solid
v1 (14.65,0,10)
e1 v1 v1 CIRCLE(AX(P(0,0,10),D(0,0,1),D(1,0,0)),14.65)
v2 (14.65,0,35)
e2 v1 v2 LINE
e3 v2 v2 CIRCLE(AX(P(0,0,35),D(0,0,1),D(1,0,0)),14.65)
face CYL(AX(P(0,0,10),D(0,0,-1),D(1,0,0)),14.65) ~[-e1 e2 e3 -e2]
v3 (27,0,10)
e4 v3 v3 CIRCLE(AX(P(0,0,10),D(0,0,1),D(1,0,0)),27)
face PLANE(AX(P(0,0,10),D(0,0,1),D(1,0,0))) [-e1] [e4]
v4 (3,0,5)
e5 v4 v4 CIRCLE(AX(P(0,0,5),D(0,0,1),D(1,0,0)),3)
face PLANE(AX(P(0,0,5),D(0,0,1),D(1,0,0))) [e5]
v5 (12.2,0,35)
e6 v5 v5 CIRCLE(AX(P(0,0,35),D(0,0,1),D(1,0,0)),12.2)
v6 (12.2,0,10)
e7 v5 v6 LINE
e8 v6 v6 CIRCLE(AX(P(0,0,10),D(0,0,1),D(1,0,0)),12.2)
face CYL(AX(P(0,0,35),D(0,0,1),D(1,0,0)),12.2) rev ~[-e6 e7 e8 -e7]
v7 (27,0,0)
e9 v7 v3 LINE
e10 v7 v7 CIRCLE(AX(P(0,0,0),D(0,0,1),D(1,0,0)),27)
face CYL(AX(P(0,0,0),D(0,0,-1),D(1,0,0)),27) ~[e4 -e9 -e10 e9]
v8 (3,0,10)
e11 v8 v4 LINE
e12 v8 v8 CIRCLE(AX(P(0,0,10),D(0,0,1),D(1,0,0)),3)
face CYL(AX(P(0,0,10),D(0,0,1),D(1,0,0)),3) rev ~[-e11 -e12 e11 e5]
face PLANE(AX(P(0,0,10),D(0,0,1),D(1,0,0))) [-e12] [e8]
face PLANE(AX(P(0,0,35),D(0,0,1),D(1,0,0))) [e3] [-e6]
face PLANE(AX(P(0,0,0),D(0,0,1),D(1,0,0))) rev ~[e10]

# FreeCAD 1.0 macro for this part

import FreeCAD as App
import Part
import Sketcher

doc = App.newDocument("Part")
body = doc.addObject("PartDesign::Body", "Body")

sketch1 = body.newObject("Sketcher::SketchObject", "Sketch")
sketch1.AttachmentSupport = (doc.getObject("XY_Plane"), [""])
sketch1.MapMode = "FlatFace"
sketch1.addGeometry(Part.Circle(App.Vector(0, 0, 0), App.Vector(0, 0, 1), 27), False)
sketch1.addConstraint([
    Sketcher.Constraint("Coincident", 0, 3, -1, 1),
    Sketcher.Constraint("Diameter", 0, 54.0),
])
pad1 = body.newObject("PartDesign::Pad", "Pad")
pad1.Profile = sketch1
pad1.Length = 10

sketch2 = body.newObject("Sketcher::SketchObject", "Sketch001")
sketch2.AttachmentSupport = (doc.getObject("XY_Plane"), [""])
sketch2.MapMode = "FlatFace"
sketch2.AttachmentOffset = App.Placement(App.Vector(0, 0, 10), App.Rotation())
sketch2.addGeometry(Part.Circle(App.Vector(0, 0, 0), App.Vector(0, 0, 1), 15), False)
sketch2.addConstraint([
    Sketcher.Constraint("Coincident", 0, 3, -1, 1),
    Sketcher.Constraint("Diameter", 0, 29.3),
])
pad2 = body.newObject("PartDesign::Pad", "Pad001")
pad2.Profile = sketch2
pad2.Length = 25

sketch3 = body.newObject("Sketcher::SketchObject", "Sketch002")
sketch3.AttachmentSupport = (doc.getObject("XY_Plane"), [""])
sketch3.MapMode = "FlatFace"
sketch3.AttachmentOffset = App.Placement(App.Vector(0, 0, 35), App.Rotation())
sketch3.addGeometry(Part.Circle(App.Vector(0, 0, 0), App.Vector(0, 0, 1), 12), False)
sketch3.addConstraint([
    Sketcher.Constraint("Coincident", 0, 3, -1, 1),
    Sketcher.Constraint("Diameter", 0, 24.4),
])
pocket1 = body.newObject("PartDesign::Pocket", "Pocket")
pocket1.Profile = sketch3
pocket1.Length = 25

sketch4 = body.newObject("Sketcher::SketchObject", "Sketch003")
sketch4.AttachmentSupport = (doc.getObject("XY_Plane"), [""])
sketch4.MapMode = "FlatFace"
sketch4.AttachmentOffset = App.Placement(App.Vector(0, 0, 10), App.Rotation())
sketch4.addGeometry(Part.Circle(App.Vector(0, 0, 0), App.Vector(0, 0, 1), 3), False)
sketch4.addConstraint([
    Sketcher.Constraint("Coincident", 0, 3, -1, 1),
    Sketcher.Constraint("Diameter", 0, 6.0),
])
pocket2 = body.newObject("PartDesign::Pocket", "Pocket001")
pocket2.Profile = sketch4
pocket2.Length = 5

doc.recompute()
